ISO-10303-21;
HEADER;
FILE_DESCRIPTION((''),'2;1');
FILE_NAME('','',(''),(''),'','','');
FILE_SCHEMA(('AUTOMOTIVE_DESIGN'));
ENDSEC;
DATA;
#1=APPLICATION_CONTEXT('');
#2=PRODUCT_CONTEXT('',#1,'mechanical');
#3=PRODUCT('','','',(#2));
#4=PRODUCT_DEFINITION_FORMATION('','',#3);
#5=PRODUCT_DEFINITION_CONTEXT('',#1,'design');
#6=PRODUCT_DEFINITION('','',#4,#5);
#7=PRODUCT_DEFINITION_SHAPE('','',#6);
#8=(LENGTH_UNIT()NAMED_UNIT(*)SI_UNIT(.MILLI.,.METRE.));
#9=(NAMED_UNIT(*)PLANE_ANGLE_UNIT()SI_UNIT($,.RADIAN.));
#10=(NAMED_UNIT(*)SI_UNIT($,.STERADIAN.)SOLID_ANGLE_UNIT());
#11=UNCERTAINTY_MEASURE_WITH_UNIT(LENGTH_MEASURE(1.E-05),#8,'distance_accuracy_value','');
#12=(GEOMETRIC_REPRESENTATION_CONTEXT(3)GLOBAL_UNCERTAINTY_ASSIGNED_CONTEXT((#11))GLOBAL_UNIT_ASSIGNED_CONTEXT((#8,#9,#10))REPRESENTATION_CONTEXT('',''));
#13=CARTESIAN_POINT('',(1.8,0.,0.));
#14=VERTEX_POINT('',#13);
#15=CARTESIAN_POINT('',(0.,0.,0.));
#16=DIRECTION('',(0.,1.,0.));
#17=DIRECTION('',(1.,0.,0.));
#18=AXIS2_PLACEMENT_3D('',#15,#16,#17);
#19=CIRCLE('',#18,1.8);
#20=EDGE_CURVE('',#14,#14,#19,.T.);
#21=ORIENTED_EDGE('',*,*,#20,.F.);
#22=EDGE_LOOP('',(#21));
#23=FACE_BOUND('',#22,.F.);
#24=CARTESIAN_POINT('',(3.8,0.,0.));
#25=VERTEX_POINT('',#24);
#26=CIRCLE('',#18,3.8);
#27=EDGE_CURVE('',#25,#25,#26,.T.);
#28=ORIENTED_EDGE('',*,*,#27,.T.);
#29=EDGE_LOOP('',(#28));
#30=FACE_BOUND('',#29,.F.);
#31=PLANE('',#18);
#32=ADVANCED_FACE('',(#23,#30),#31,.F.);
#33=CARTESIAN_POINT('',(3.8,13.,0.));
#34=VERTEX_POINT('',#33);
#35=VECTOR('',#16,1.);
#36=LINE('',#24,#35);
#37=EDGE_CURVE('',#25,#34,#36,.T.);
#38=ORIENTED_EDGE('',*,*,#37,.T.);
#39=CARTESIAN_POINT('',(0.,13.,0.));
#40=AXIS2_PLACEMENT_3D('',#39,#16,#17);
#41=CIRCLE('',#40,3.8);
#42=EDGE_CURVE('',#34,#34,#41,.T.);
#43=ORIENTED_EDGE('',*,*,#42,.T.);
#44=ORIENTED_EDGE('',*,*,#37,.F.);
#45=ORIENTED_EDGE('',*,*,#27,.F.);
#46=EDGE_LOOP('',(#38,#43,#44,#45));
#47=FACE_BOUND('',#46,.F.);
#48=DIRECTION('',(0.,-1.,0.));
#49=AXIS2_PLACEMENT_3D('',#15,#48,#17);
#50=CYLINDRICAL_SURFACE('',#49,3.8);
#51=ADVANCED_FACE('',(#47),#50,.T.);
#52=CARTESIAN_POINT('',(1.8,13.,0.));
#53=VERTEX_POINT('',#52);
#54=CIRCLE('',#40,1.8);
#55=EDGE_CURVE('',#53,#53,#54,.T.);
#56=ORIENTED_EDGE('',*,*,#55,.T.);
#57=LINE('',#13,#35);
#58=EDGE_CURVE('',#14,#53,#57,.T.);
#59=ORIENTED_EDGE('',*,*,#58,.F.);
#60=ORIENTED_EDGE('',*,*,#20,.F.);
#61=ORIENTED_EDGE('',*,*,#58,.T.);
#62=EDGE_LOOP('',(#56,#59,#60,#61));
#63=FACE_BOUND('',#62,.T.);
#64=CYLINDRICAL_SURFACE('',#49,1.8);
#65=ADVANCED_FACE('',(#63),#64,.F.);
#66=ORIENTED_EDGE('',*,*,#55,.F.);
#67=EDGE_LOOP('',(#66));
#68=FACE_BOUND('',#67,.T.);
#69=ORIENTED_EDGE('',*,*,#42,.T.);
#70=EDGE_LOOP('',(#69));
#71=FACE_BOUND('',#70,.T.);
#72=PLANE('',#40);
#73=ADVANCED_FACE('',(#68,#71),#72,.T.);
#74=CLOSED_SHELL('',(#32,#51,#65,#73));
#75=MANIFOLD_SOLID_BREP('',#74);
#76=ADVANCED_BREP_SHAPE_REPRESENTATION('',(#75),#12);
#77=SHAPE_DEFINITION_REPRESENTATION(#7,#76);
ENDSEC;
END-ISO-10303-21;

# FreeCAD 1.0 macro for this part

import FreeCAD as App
import Part
import Sketcher

V = App.Vector
Q = App.Units.Quantity

doc = App.newDocument("Part")
params = doc.addObject("Spreadsheet::Sheet", "Params")
for row, (alias, value) in enumerate([
    ("sketch1_diameter", "7.6 mm"),
    ("sketch1_diameter2", "3.6 mm"),
    ("pad1_length", "13 mm"),
], start=1):
    params.set(f"A{row}", alias)
    params.set(f"B{row}", "=" + value)
    params.setAlias(f"B{row}", alias)

body = doc.addObject("PartDesign::Body", "Body")

# Sketch on XZ plane
sketch1 = body.newObject("Sketcher::SketchObject", "Sketch")
sketch1.AttachmentSupport = (doc.getObject("XZ_Plane"), [""])
sketch1.MapMode = "FlatFace"
sketch1.addGeometry([
    Part.Circle(V(0, 0, 0), V(0, 0, 1), 3.8),
    Part.Circle(V(0, 0, 0), V(0, 0, 1), 1.8),
], False)
sketch1.addConstraint([
    Sketcher.Constraint("Coincident", 0, 3, -1, 1),
    Sketcher.Constraint("Coincident", 1, 3, -1, 1),
    Sketcher.Constraint("Diameter", 0, Q("7.6 mm")),
    Sketcher.Constraint("Diameter", 1, Q("3.6 mm")),
])
sketch1.setExpression("Constraints[2]", "Params.sketch1_diameter")
sketch1.setExpression("Constraints[3]", "Params.sketch1_diameter2")
pad1 = body.newObject("PartDesign::Pad", "Pad")
pad1.Profile = sketch1
pad1.setExpression("Length", "Params.pad1_length")
pad1.Reversed = True

doc.recompute()
